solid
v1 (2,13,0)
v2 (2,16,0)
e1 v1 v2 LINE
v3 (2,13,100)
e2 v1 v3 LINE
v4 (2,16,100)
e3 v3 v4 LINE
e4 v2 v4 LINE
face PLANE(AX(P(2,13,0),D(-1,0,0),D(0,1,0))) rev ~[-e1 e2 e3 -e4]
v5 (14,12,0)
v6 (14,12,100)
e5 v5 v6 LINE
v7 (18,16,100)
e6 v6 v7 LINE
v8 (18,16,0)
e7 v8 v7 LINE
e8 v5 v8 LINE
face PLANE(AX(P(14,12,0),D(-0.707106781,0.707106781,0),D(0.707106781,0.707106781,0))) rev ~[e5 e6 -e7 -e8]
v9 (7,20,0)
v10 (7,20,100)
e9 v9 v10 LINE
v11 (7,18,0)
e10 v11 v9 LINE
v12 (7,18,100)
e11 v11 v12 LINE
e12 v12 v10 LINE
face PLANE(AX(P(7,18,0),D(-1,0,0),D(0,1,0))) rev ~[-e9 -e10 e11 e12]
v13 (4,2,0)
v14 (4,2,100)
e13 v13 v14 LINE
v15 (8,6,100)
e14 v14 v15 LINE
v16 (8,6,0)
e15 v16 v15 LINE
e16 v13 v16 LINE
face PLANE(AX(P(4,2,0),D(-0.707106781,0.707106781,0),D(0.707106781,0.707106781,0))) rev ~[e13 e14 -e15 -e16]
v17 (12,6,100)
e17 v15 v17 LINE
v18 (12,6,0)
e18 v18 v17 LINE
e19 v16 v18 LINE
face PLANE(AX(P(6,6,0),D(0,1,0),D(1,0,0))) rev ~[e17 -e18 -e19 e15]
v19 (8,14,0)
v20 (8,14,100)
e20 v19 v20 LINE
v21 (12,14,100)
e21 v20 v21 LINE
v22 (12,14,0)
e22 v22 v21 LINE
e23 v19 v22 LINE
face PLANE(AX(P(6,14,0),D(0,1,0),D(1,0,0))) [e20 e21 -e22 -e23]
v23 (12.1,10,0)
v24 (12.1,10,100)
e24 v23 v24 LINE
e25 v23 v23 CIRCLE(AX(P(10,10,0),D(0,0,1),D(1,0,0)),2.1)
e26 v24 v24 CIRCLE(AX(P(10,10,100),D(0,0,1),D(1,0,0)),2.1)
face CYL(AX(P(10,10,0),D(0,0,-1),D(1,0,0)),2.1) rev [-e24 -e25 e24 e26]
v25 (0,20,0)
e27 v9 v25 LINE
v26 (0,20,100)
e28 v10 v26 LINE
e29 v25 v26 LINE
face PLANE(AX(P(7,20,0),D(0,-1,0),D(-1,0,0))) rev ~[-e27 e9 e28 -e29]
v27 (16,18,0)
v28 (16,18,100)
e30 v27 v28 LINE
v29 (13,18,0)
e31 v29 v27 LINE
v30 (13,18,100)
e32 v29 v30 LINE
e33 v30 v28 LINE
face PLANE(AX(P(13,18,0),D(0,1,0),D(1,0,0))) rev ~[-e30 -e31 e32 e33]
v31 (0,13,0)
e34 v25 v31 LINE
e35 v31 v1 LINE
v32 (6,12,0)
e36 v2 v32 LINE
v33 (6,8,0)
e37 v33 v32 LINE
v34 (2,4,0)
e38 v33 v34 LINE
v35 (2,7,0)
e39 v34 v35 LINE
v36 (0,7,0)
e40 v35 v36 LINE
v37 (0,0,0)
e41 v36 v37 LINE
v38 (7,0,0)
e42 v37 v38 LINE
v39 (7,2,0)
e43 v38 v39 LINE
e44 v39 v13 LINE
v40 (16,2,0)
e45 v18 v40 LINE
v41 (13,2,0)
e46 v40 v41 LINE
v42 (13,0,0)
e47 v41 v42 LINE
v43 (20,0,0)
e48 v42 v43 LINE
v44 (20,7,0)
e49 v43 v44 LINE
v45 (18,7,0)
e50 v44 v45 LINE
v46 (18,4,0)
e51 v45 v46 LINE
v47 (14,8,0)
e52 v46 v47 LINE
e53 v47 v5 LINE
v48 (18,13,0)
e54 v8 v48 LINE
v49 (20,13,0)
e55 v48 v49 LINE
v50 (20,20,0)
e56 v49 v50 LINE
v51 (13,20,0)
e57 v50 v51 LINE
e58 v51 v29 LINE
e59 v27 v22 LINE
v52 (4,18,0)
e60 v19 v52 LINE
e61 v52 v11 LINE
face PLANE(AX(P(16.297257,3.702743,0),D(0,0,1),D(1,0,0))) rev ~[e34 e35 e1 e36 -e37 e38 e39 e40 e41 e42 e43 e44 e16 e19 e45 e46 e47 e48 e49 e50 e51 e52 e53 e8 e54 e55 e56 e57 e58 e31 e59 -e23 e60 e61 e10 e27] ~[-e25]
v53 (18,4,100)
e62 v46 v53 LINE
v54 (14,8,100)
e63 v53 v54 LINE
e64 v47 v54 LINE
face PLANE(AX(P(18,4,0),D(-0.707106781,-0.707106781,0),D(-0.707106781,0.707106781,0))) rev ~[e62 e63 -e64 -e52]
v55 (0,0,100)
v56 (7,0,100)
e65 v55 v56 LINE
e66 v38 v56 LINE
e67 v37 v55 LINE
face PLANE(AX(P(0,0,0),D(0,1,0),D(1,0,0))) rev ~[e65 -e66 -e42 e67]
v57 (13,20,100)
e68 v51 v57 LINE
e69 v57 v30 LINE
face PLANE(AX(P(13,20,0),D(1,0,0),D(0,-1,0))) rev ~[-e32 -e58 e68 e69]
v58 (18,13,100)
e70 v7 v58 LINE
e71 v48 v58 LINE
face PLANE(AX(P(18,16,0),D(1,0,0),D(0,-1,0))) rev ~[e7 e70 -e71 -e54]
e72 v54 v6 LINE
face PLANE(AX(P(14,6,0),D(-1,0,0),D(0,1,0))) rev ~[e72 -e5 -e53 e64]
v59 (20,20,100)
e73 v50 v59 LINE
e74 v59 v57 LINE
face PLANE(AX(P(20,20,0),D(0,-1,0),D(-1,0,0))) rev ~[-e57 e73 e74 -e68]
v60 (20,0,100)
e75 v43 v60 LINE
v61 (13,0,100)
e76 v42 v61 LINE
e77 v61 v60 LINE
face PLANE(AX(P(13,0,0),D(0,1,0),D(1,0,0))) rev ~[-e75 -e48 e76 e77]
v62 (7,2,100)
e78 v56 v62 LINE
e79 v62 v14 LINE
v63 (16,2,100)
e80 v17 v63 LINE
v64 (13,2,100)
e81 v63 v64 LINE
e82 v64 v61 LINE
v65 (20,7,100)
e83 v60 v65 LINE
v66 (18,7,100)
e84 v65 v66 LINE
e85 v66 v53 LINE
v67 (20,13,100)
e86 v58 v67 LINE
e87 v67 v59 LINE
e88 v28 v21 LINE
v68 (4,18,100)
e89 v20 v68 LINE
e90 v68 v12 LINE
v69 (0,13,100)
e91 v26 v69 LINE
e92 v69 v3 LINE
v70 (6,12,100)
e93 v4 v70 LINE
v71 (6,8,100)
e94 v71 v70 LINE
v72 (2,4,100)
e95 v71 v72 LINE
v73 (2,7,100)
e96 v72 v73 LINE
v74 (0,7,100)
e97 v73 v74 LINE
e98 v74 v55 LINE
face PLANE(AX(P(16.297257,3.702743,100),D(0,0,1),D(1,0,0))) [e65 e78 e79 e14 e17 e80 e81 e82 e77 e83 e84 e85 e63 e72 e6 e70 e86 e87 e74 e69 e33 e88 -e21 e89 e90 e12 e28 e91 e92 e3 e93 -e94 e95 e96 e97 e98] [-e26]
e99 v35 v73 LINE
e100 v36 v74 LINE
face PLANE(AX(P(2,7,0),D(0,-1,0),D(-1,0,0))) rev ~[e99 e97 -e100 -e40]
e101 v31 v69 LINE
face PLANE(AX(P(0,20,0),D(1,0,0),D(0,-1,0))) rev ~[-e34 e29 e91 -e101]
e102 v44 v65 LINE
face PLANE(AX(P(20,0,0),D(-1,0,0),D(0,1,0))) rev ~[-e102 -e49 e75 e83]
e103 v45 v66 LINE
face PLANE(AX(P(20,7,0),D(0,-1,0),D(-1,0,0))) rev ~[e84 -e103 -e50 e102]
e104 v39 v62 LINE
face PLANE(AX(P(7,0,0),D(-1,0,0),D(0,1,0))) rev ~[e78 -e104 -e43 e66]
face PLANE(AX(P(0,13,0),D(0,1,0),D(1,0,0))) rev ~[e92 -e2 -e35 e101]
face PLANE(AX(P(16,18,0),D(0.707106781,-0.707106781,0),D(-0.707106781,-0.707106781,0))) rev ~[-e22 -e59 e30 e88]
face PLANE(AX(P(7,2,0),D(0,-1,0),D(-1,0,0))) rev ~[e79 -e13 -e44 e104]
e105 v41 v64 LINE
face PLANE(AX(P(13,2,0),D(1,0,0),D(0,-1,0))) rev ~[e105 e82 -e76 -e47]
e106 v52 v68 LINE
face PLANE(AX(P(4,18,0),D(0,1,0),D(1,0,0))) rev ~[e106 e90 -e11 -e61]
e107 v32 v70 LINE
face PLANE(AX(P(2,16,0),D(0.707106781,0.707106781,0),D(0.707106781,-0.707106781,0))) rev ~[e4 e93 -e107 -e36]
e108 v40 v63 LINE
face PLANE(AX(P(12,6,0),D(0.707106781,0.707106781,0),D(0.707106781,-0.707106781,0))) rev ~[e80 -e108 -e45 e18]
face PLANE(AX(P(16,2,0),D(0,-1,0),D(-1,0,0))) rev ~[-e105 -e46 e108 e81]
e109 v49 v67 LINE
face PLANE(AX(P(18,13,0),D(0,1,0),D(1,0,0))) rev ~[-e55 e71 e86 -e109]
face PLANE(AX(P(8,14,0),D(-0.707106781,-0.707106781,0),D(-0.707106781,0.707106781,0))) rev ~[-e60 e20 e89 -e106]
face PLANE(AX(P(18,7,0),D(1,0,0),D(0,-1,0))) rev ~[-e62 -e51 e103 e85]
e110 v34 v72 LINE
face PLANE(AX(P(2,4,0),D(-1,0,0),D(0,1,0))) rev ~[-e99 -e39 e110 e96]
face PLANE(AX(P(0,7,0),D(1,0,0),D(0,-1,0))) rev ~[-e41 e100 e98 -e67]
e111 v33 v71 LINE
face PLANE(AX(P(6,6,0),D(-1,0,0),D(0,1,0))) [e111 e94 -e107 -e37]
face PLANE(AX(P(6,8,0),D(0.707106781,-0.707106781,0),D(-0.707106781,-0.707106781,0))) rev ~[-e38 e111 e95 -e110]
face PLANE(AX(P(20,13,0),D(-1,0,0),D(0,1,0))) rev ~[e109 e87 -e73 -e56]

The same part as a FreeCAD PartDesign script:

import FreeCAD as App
import Part
import Sketcher
from FreeCAD import Vector

doc = App.newDocument("Part")
body = doc.addObject("PartDesign::Body", "Body")

sketch1 = body.newObject("Sketcher::SketchObject", "Sketch")
sketch1.AttachmentSupport = (doc.getObject("XY_Plane"), [""])
sketch1.MapMode = "FlatFace"
sketch1.addGeometry([
    Part.LineSegment(Vector(2, 16, 0), Vector(6, 12, 0)),
    Part.LineSegment(Vector(6, 12, 0), Vector(6, 8, 0)),
    Part.LineSegment(Vector(6, 8, 0), Vector(2, 4, 0)),
    Part.LineSegment(Vector(2, 4, 0), Vector(2, 7, 0)),
    Part.LineSegment(Vector(2, 7, 0), Vector(0, 7, 0)),
    Part.LineSegment(Vector(0, 7, 0), Vector(0, 0, 0)),
    Part.LineSegment(Vector(0, 0, 0), Vector(7, 0, 0)),
    Part.LineSegment(Vector(7, 0, 0), Vector(7, 2, 0)),
    Part.LineSegment(Vector(7, 2, 0), Vector(4, 2, 0)),
    Part.LineSegment(Vector(4, 2, 0), Vector(8, 6, 0)),
    Part.LineSegment(Vector(8, 6, 0), Vector(12, 6, 0)),
    Part.LineSegment(Vector(12, 6, 0), Vector(16, 2, 0)),
    Part.LineSegment(Vector(16, 2, 0), Vector(13, 2, 0)),
    Part.LineSegment(Vector(13, 2, 0), Vector(13, 0, 0)),
    Part.LineSegment(Vector(13, 0, 0), Vector(20, 0, 0)),
    Part.LineSegment(Vector(20, 0, 0), Vector(20, 7, 0)),
    Part.LineSegment(Vector(20, 7, 0), Vector(18, 7, 0)),
    Part.LineSegment(Vector(18, 7, 0), Vector(18, 4, 0)),
    Part.LineSegment(Vector(18, 4, 0), Vector(14, 8, 0)),
    Part.LineSegment(Vector(14, 8, 0), Vector(14, 12, 0)),
    Part.LineSegment(Vector(14, 12, 0), Vector(18, 16, 0)),
    Part.LineSegment(Vector(18, 16, 0), Vector(18, 13, 0)),
    Part.LineSegment(Vector(18, 13, 0), Vector(20, 13, 0)),
    Part.LineSegment(Vector(20, 13, 0), Vector(20, 20, 0)),
    Part.LineSegment(Vector(20, 20, 0), Vector(13, 20, 0)),
    Part.LineSegment(Vector(13, 20, 0), Vector(13, 18, 0)),
    Part.LineSegment(Vector(13, 18, 0), Vector(16, 18, 0)),
    Part.LineSegment(Vector(16, 18, 0), Vector(12, 14, 0)),
    Part.LineSegment(Vector(12, 14, 0), Vector(8, 14, 0)),
    Part.LineSegment(Vector(8, 14, 0), Vector(4, 18, 0)),
    Part.LineSegment(Vector(4, 18, 0), Vector(7, 18, 0)),
    Part.LineSegment(Vector(7, 18, 0), Vector(7, 20, 0)),
    Part.LineSegment(Vector(7, 20, 0), Vector(0, 20, 0)),
    Part.LineSegment(Vector(0, 20, 0), Vector(0, 13, 0)),
    Part.LineSegment(Vector(0, 13, 0), Vector(2, 13, 0)),
    Part.LineSegment(Vector(2, 13, 0), Vector(2, 16, 0)),
    Part.Circle(Vector(10, 10, 0), Vector(0, 0, 1), 2.1),
], False)
sketch1.addConstraint([
    Sketcher.Constraint("Coincident", 0, 2, 1, 1),
    Sketcher.Constraint("Coincident", 1, 2, 2, 1),
    Sketcher.Constraint("Coincident", 2, 2, 3, 1),
    Sketcher.Constraint("Coincident", 3, 2, 4, 1),
    Sketcher.Constraint("Coincident", 4, 2, 5, 1),
    Sketcher.Constraint("Coincident", 5, 2, 6, 1),
    Sketcher.Constraint("Coincident", 6, 2, 7, 1),
    Sketcher.Constraint("Coincident", 7, 2, 8, 1),
    Sketcher.Constraint("Coincident", 8, 2, 9, 1),
    Sketcher.Constraint("Coincident", 9, 2, 10, 1),
    Sketcher.Constraint("Coincident", 10, 2, 11, 1),
    Sketcher.Constraint("Coincident", 11, 2, 12, 1),
    Sketcher.Constraint("Coincident", 12, 2, 13, 1),
    Sketcher.Constraint("Coincident", 13, 2, 14, 1),
    Sketcher.Constraint("Coincident", 14, 2, 15, 1),
    Sketcher.Constraint("Coincident", 15, 2, 16, 1),
    Sketcher.Constraint("Coincident", 16, 2, 17, 1),
    Sketcher.Constraint("Coincident", 17, 2, 18, 1),
    Sketcher.Constraint("Coincident", 18, 2, 19, 1),
    Sketcher.Constraint("Coincident", 19, 2, 20, 1),
    Sketcher.Constraint("Coincident", 20, 2, 21, 1),
    Sketcher.Constraint("Coincident", 21, 2, 22, 1),
    Sketcher.Constraint("Coincident", 22, 2, 23, 1),
    Sketcher.Constraint("Coincident", 23, 2, 24, 1),
    Sketcher.Constraint("Coincident", 24, 2, 25, 1),
    Sketcher.Constraint("Coincident", 25, 2, 26, 1),
    Sketcher.Constraint("Coincident", 26, 2, 27, 1),
    Sketcher.Constraint("Coincident", 27, 2, 28, 1),
    Sketcher.Constraint("Coincident", 28, 2, 29, 1),
    Sketcher.Constraint("Coincident", 29, 2, 30, 1),
    Sketcher.Constraint("Coincident", 30, 2, 31, 1),
    Sketcher.Constraint("Coincident", 31, 2, 32, 1),
    Sketcher.Constraint("Coincident", 32, 2, 33, 1),
    Sketcher.Constraint("Coincident", 33, 2, 34, 1),
    Sketcher.Constraint("Coincident", 34, 2, 35, 1),
    Sketcher.Constraint("Coincident", 35, 2, 0, 1),
    Sketcher.Constraint("Vertical", 1),
    Sketcher.Constraint("Vertical", 3),
    Sketcher.Constraint("Horizontal", 4),
    Sketcher.Constraint("Vertical", 5),
    Sketcher.Constraint("Horizontal", 6),
    Sketcher.Constraint("Vertical", 7),
    Sketcher.Constraint("Horizontal", 8),
    Sketcher.Constraint("Horizontal", 10),
    Sketcher.Constraint("Horizontal", 12),
    Sketcher.Constraint("Vertical", 13),
    Sketcher.Constraint("Horizontal", 14),
    Sketcher.Constraint("Vertical", 15),
    Sketcher.Constraint("Horizontal", 16),
    Sketcher.Constraint("Vertical", 17),
    Sketcher.Constraint("Vertical", 19),
    Sketcher.Constraint("Vertical", 21),
    Sketcher.Constraint("Horizontal", 22),
    Sketcher.Constraint("Vertical", 23),
    Sketcher.Constraint("Horizontal", 24),
    Sketcher.Constraint("Vertical", 25),
    Sketcher.Constraint("Horizontal", 26),
    Sketcher.Constraint("Horizontal", 28),
    Sketcher.Constraint("Horizontal", 30),
    Sketcher.Constraint("Vertical", 31),
    Sketcher.Constraint("Horizontal", 32),
    Sketcher.Constraint("Vertical", 33),
    Sketcher.Constraint("Horizontal", 34),
    Sketcher.Constraint("Vertical", 35),
    Sketcher.Constraint("Coincident", 5, 2, -1, 1),
    Sketcher.Constraint("PointOnObject", 13, 2, -1),
    Sketcher.Constraint("PointOnObject", 32, 2, -2),
    Sketcher.Constraint("Perpendicular", 0, 2),
    Sketcher.Constraint("Parallel", 2, 9),
    Sketcher.Constraint("Perpendicular", 9, 11),
    Sketcher.Constraint("Parallel", 11, 18),
    Sketcher.Constraint("Perpendicular", 18, 20),
    Sketcher.Constraint("Parallel", 20, 27),
    Sketcher.Constraint("Perpendicular", 27, 29),
    Sketcher.Constraint("Horizontal", 8, 2, 11, 2),
    Sketcher.Constraint("Horizontal", 4, 2, 15, 2),
    Sketcher.Constraint("Horizontal", 2, 2, 17, 2),
    Sketcher.Constraint("Horizontal", 1, 2, 18, 2),
    Sketcher.Constraint("Horizontal", 0, 2, 19, 2),
    Sketcher.Constraint("Horizontal", 26, 2, 29, 2),
    Sketcher.Constraint("Horizontal", 24, 2, 31, 2),
    Sketcher.Constraint("Horizontal", 22, 2, 33, 2),
    Sketcher.Constraint("Horizontal", 20, 2, 35, 2),
    Sketcher.Constraint("Vertical", 17, 2, 20, 2),
    Sketcher.Constraint("Vertical", 15, 2, 22, 2),
    Sketcher.Constraint("Vertical", 13, 2, 24, 2),
    Sketcher.Constraint("Vertical", 11, 2, 26, 2),
    Sketcher.Constraint("Vertical", 10, 2, 27, 2),
    Sketcher.Constraint("Vertical", 9, 2, 28, 2),
    Sketcher.Constraint("Vertical", 8, 2, 29, 2),
    Sketcher.Constraint("Vertical", 7, 2, 30, 2),
    Sketcher.Constraint("Equal", 8, 12),
    Sketcher.Constraint("Equal", 6, 14),
    Sketcher.Constraint("Equal", 4, 16),
    Sketcher.Constraint("Equal", 28, 1),
    Sketcher.Constraint("Equal", 30, 3),
    Sketcher.Constraint("Equal", 32, 5),
    Sketcher.Constraint("Equal", 34, 7),
    Sketcher.Constraint("Equal", 17, 21),
    Sketcher.Constraint("Equal", 15, 23),
    Sketcher.Constraint("Equal", 13, 25),
    Sketcher.Constraint("Equal", 2, 9),
    Sketcher.Constraint("Diameter", 36, 4.2),
    Sketcher.Constraint("DistanceX", 4, 2, 4, 1, 2.0),
    Sketcher.Constraint("DistanceX", 6, 1, 6, 2, 7.0),
    Sketcher.Constraint("DistanceX", 8, 2, 8, 1, 3.0),
    Sketcher.Constraint("DistanceX", 10, 1, 10, 2, 4.0),
    Sketcher.Constraint("DistanceX", -1, 1, 36, 3, 10.0),
    Sketcher.Constraint("DistanceY", -1, 1, 36, 3, 10.0),
    Sketcher.Constraint("DistanceX", -1, 1, 0, 2, 6.0),
])
pad1 = body.newObject("PartDesign::Pad", "Pad")
pad1.Profile = sketch1
pad1.Length = 100

doc.recompute()
